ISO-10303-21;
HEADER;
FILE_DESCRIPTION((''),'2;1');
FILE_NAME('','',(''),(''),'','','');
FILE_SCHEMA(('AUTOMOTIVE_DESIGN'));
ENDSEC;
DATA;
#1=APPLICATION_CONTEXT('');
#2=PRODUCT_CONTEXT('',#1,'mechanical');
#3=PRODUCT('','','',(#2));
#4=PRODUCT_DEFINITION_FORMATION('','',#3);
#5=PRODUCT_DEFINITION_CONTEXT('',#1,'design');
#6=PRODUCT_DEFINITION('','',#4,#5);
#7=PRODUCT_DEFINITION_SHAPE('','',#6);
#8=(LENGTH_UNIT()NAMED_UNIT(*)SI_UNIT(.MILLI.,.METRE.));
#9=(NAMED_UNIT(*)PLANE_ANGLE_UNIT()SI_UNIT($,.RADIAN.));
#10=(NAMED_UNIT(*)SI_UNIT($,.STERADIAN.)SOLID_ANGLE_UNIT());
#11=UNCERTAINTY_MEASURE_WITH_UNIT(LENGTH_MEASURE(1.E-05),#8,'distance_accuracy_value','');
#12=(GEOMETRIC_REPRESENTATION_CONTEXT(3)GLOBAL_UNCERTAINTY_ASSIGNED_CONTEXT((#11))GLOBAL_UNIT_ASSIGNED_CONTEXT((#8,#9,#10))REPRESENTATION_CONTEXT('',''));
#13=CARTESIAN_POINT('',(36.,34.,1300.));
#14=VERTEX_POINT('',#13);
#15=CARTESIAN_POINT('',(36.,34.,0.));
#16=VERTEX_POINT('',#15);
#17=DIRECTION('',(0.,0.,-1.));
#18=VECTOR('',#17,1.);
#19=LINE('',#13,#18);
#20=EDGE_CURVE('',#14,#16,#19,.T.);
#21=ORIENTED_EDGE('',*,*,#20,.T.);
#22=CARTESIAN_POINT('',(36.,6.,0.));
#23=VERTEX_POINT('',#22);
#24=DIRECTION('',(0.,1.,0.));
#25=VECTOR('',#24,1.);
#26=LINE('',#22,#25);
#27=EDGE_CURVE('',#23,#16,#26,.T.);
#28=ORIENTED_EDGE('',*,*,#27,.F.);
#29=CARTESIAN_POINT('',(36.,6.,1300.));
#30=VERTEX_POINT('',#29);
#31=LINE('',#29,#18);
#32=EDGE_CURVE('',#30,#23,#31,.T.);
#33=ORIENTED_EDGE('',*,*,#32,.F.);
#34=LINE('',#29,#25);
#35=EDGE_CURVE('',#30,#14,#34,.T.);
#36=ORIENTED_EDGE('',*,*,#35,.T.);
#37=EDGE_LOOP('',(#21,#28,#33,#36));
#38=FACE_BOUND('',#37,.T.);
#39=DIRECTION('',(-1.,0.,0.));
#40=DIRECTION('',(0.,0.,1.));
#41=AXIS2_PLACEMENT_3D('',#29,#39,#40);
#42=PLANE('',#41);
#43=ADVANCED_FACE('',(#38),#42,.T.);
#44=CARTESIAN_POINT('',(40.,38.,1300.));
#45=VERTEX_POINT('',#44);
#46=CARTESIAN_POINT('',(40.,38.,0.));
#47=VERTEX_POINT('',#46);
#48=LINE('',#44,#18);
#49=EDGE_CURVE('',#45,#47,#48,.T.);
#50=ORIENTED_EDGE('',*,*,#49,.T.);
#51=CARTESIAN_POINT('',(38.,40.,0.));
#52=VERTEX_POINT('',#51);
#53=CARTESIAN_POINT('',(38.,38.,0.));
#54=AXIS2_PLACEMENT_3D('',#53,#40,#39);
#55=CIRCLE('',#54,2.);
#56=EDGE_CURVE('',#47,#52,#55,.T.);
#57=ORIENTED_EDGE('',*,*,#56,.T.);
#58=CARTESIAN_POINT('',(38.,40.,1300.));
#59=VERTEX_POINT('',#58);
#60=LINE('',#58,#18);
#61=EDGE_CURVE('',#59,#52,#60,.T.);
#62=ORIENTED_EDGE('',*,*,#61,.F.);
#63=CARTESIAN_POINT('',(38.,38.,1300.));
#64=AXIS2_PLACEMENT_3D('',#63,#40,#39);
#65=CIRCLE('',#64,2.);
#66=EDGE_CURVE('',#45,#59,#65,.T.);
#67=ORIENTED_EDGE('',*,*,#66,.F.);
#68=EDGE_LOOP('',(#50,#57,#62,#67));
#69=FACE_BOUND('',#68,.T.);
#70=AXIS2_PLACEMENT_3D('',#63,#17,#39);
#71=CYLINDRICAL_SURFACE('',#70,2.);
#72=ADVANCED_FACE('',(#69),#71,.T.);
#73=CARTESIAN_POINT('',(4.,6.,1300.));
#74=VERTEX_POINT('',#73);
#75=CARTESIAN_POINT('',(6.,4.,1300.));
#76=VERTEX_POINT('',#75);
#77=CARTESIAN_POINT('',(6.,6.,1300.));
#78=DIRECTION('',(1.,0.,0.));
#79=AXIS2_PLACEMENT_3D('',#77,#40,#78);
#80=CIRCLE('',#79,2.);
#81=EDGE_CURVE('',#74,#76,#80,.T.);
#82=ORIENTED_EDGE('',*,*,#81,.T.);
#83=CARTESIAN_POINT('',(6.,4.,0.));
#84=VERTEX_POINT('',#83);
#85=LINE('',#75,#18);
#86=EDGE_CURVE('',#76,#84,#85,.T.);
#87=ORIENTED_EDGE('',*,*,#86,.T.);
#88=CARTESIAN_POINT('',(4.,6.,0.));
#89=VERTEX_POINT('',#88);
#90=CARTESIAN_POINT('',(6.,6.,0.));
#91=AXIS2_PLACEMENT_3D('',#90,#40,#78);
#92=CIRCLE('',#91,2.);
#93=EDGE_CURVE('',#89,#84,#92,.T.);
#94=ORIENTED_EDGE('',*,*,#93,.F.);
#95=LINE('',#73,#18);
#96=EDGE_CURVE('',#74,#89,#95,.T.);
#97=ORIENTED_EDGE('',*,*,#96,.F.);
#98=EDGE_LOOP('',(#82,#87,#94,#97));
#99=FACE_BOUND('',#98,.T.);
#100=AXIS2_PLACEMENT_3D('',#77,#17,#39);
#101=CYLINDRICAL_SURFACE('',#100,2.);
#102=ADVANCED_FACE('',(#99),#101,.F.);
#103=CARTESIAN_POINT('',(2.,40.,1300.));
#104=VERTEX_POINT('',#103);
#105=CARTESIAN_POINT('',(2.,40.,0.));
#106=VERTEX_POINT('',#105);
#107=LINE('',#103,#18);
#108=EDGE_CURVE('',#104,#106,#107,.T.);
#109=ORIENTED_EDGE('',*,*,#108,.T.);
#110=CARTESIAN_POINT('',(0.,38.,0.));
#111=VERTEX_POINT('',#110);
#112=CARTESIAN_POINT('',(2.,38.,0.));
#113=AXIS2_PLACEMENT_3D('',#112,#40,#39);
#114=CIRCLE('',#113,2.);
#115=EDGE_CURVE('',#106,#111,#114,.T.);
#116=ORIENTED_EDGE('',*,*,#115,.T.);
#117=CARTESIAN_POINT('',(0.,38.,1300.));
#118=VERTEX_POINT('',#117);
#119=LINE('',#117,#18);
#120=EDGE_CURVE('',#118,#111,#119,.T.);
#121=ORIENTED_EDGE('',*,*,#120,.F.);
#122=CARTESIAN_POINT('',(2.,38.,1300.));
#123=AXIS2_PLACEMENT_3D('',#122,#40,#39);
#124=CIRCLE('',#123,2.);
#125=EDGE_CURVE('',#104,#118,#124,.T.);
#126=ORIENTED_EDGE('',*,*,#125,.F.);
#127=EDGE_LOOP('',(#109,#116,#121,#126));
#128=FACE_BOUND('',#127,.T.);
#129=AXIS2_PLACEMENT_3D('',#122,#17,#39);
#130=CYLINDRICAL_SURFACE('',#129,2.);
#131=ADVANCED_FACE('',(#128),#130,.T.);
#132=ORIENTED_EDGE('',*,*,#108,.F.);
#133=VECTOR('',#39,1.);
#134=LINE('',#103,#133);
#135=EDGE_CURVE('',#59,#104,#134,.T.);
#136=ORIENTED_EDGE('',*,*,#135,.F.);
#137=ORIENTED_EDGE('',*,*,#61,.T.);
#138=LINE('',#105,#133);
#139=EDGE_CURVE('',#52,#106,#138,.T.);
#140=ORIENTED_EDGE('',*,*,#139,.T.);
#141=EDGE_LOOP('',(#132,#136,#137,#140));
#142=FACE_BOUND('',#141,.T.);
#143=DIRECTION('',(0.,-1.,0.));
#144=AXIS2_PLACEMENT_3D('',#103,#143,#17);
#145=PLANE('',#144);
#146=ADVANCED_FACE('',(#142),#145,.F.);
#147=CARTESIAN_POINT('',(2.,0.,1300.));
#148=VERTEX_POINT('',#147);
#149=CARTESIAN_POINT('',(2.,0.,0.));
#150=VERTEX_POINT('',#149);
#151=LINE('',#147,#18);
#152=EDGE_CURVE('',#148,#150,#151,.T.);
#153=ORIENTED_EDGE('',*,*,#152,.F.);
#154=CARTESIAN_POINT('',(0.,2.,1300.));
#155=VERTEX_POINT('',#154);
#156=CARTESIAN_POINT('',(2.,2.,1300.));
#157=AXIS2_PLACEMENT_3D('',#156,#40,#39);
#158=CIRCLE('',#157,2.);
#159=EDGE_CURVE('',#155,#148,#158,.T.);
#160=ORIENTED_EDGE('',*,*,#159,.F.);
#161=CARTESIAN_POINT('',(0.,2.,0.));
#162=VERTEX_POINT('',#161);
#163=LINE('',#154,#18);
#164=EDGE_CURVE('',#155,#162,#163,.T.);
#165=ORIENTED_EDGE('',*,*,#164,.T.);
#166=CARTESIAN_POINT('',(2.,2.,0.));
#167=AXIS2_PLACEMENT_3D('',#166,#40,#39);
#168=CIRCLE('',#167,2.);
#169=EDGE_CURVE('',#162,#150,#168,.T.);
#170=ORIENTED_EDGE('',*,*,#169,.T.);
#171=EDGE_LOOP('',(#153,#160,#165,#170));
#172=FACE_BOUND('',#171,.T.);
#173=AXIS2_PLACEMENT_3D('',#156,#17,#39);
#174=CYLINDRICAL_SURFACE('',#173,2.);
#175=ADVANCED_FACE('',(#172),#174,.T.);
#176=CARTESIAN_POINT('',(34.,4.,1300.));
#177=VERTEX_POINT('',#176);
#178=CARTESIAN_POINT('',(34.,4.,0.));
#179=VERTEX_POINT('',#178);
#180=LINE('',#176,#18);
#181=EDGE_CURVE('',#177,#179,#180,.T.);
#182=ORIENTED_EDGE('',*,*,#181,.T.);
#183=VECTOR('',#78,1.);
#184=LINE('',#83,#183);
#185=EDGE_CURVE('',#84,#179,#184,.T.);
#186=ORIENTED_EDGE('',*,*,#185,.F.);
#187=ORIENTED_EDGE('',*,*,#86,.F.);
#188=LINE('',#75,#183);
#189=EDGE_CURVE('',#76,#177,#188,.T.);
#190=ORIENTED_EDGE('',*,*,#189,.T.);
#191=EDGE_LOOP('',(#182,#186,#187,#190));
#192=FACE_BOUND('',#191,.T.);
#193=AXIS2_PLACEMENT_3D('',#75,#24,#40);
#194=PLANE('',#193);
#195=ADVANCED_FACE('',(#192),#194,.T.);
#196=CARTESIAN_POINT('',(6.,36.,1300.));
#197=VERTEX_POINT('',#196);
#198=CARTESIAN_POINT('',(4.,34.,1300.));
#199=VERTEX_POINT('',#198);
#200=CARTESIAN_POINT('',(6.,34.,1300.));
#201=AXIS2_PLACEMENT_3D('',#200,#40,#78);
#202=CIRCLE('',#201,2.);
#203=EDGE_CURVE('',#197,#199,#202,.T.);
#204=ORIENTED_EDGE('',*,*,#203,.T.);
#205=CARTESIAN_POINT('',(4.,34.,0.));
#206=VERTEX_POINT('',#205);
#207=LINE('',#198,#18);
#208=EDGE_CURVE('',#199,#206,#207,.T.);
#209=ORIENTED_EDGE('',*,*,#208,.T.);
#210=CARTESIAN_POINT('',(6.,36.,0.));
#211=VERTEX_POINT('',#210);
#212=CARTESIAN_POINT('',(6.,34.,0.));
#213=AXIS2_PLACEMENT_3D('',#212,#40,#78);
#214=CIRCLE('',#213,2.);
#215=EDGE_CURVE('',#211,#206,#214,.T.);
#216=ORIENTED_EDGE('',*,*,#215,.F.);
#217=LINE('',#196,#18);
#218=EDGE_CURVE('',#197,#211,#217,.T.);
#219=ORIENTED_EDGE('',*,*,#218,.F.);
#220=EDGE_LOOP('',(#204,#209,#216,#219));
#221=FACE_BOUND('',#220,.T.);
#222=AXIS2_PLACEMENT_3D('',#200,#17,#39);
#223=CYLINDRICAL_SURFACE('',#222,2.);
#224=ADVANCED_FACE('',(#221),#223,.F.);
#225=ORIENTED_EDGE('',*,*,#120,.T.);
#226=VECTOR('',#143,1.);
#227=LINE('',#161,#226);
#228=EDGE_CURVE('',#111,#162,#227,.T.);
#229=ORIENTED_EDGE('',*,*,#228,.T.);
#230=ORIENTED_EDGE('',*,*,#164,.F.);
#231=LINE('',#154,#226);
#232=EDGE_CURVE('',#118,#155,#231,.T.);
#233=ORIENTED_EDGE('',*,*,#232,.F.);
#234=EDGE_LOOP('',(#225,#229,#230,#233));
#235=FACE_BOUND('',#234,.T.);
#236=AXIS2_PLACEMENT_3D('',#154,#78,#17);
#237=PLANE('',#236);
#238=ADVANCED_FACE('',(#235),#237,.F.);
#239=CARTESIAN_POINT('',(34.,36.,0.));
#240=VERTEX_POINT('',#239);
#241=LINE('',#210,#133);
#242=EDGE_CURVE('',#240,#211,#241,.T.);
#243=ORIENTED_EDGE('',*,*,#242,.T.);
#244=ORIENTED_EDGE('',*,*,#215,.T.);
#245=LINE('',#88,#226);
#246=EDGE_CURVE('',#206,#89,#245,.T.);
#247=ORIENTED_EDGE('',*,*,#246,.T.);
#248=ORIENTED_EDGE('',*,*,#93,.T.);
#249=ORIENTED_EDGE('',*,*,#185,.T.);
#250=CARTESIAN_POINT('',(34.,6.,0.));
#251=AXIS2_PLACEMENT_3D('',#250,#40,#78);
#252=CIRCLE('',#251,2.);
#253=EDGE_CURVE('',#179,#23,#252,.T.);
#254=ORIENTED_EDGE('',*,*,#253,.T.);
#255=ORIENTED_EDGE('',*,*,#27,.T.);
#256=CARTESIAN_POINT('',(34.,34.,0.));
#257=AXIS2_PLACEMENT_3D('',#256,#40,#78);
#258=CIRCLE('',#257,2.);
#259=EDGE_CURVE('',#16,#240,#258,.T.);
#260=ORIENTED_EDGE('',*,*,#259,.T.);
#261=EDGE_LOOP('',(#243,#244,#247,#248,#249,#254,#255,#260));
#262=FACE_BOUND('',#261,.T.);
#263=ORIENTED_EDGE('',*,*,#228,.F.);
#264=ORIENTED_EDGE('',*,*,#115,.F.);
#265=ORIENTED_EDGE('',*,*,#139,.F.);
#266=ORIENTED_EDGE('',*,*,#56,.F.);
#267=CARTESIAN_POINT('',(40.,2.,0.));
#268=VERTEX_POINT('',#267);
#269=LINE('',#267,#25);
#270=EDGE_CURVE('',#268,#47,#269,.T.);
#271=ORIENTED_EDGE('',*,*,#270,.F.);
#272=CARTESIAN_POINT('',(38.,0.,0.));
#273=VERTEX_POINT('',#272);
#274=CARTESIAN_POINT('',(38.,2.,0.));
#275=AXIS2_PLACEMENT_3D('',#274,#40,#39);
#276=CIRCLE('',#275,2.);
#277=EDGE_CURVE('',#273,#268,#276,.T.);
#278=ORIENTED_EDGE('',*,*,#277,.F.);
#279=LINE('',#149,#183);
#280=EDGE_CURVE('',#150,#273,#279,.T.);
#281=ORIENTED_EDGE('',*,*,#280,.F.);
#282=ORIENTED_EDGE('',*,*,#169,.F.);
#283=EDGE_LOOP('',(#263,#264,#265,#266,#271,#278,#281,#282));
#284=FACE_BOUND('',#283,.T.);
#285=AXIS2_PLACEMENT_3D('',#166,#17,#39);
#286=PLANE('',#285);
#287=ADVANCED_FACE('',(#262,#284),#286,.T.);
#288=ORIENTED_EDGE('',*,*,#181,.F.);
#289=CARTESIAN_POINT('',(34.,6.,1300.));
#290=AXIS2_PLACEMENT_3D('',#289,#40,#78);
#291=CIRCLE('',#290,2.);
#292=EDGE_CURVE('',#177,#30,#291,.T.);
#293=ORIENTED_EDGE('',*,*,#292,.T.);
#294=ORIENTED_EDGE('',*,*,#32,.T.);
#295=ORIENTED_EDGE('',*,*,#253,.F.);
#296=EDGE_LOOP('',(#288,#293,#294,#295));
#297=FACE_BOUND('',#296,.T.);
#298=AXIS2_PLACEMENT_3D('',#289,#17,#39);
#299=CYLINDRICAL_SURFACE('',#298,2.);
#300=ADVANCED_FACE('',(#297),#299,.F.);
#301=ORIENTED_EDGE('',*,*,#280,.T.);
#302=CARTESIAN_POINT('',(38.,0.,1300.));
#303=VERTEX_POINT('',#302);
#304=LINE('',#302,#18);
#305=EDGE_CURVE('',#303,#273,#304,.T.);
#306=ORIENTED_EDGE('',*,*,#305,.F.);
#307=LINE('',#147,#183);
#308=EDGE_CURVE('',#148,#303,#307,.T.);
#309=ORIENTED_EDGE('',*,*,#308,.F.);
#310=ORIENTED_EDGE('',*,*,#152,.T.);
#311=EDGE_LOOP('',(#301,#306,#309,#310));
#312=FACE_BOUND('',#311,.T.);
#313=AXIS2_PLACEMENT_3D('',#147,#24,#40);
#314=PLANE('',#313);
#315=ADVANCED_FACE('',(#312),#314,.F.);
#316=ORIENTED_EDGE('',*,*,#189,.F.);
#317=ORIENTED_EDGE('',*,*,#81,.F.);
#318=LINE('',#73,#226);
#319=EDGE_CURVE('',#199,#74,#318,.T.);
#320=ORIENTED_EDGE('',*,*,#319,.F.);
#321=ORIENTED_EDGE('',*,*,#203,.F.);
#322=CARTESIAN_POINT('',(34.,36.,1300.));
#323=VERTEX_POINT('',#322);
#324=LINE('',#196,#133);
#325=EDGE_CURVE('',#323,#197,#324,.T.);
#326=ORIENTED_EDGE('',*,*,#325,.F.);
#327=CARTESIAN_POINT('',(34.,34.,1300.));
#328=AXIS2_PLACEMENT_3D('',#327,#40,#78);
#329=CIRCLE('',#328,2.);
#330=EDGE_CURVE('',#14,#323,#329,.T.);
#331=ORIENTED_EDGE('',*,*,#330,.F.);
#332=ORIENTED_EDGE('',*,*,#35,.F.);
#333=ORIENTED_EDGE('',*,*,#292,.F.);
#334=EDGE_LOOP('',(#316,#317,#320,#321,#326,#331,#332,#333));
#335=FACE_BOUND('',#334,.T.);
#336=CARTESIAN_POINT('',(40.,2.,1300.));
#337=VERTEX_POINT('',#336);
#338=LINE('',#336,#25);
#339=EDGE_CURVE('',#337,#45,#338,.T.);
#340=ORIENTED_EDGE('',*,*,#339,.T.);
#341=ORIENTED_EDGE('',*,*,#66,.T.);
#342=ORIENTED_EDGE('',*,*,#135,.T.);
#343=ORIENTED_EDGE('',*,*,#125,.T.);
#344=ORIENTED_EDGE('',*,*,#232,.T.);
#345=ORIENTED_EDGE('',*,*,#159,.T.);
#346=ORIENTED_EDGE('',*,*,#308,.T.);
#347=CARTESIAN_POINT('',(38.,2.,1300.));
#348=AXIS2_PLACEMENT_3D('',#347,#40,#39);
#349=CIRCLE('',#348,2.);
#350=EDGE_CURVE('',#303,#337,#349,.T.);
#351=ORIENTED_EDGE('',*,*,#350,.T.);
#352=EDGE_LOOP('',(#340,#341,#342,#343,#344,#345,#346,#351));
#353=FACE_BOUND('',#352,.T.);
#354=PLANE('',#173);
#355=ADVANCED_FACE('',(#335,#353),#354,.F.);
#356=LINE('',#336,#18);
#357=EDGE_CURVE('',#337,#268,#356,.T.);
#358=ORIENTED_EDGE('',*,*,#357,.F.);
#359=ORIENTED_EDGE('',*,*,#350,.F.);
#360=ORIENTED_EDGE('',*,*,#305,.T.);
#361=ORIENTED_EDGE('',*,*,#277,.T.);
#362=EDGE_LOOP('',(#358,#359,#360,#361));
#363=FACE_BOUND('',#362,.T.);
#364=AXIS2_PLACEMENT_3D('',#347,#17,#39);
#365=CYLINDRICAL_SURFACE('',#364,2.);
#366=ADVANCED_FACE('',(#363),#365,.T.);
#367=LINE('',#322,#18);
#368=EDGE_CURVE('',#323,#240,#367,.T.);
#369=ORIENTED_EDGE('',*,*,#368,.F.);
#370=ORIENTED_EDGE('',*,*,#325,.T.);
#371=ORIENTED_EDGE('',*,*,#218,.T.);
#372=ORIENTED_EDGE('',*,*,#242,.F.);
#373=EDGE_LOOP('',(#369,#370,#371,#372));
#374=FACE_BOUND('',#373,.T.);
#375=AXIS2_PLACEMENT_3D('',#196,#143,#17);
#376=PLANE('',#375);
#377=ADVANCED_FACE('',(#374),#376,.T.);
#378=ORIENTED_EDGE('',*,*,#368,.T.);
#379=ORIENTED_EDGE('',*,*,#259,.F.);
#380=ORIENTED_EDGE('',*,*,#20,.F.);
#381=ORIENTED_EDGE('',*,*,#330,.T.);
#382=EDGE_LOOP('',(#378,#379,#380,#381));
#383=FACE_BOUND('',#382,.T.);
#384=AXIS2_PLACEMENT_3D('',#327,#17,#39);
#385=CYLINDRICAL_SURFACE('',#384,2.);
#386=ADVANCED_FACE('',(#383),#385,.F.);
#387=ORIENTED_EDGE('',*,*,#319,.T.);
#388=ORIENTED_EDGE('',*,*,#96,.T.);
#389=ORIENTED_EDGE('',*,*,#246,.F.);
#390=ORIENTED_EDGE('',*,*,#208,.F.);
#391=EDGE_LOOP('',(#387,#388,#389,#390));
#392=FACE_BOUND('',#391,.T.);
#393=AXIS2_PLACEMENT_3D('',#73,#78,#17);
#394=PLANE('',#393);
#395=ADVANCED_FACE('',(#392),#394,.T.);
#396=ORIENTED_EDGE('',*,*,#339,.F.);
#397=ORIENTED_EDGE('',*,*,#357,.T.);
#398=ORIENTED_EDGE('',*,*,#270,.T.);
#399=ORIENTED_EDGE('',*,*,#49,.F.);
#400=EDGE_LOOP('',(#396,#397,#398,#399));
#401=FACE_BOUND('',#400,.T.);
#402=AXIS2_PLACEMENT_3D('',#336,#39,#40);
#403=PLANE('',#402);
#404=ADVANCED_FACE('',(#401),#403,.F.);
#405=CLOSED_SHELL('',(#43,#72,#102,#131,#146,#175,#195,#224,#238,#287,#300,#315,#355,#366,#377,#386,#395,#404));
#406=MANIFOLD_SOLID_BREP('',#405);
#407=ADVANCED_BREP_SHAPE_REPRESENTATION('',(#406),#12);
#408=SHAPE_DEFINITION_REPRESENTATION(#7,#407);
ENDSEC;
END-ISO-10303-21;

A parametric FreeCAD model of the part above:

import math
import FreeCAD as App
import Part
import Sketcher
from FreeCAD import Vector

doc = App.newDocument("Part")
body = doc.addObject("PartDesign::Body", "Body")

# Sketch on XY plane
sketch1 = body.newObject("Sketcher::SketchObject", "Sketch")
sketch1.AttachmentSupport = (doc.getObject("XY_Plane"), [""])
sketch1.MapMode = "FlatFace"
sketch1.addGeometry([
    Part.LineSegment(Vector(2, 0, 0), Vector(38, 0, 0)),  # 0
    Part.ArcOfCircle(Part.Circle(Vector(38, 2, 0), Vector(0, 0, 1), 2), math.radians(-90), math.radians(0)),  # 1
    Part.LineSegment(Vector(40, 2, 0), Vector(40, 38, 0)),  # 2
    Part.ArcOfCircle(Part.Circle(Vector(38, 38, 0), Vector(0, 0, 1), 2), math.radians(0), math.radians(90)),  # 3
    Part.LineSegment(Vector(38, 40, 0), Vector(2, 40, 0)),  # 4
    Part.ArcOfCircle(Part.Circle(Vector(2, 38, 0), Vector(0, 0, 1), 2), math.radians(90), math.radians(180)),  # 5
    Part.LineSegment(Vector(0, 38, 0), Vector(0, 2, 0)),  # 6
    Part.ArcOfCircle(Part.Circle(Vector(2, 2, 0), Vector(0, 0, 1), 2), math.radians(-180), math.radians(-90)),  # 7
    Part.LineSegment(Vector(34, 4, 0), Vector(6, 4, 0)),  # 8
    Part.ArcOfCircle(Part.Circle(Vector(6, 6, 0), Vector(0, 0, 1), 2), math.radians(-180), math.radians(-90)),  # 9
    Part.LineSegment(Vector(4, 6, 0), Vector(4, 34, 0)),  # 10
    Part.ArcOfCircle(Part.Circle(Vector(6, 34, 0), Vector(0, 0, 1), 2), math.radians(90), math.radians(180)),  # 11
    Part.LineSegment(Vector(6, 36, 0), Vector(34, 36, 0)),  # 12
    Part.ArcOfCircle(Part.Circle(Vector(34, 34, 0), Vector(0, 0, 1), 2), math.radians(0), math.radians(90)),  # 13
    Part.LineSegment(Vector(36, 34, 0), Vector(36, 6, 0)),  # 14
    Part.ArcOfCircle(Part.Circle(Vector(34, 6, 0), Vector(0, 0, 1), 2), math.radians(-90), math.radians(0)),  # 15
], False)
sketch1.addConstraint([
    Sketcher.Constraint("Tangent", 0, 2, 1, 1),
    Sketcher.Constraint("Tangent", 1, 2, 2, 1),
    Sketcher.Constraint("Tangent", 2, 2, 3, 1),
    Sketcher.Constraint("Tangent", 3, 2, 4, 1),
    Sketcher.Constraint("Tangent", 4, 2, 5, 1),
    Sketcher.Constraint("Tangent", 5, 2, 6, 1),
    Sketcher.Constraint("Tangent", 6, 2, 7, 1),
    Sketcher.Constraint("Tangent", 7, 2, 0, 1),
    Sketcher.Constraint("Tangent", 8, 2, 9, 2),
    Sketcher.Constraint("Tangent", 9, 1, 10, 1),
    Sketcher.Constraint("Tangent", 10, 2, 11, 2),
    Sketcher.Constraint("Tangent", 11, 1, 12, 1),
    Sketcher.Constraint("Tangent", 12, 2, 13, 2),
    Sketcher.Constraint("Tangent", 13, 1, 14, 1),
    Sketcher.Constraint("Tangent", 14, 2, 15, 2),
    Sketcher.Constraint("Tangent", 15, 1, 8, 1),
    Sketcher.Constraint("Horizontal", 0),
    Sketcher.Constraint("Vertical", 2),
    Sketcher.Constraint("Horizontal", 4),
    Sketcher.Constraint("Vertical", 6),
    Sketcher.Constraint("Horizontal", 8),
    Sketcher.Constraint("Vertical", 10),
    Sketcher.Constraint("Horizontal", 12),
    Sketcher.Constraint("Vertical", 14),
    Sketcher.Constraint("Equal", 1, 3),
    Sketcher.Constraint("Equal", 3, 5),
    Sketcher.Constraint("Equal", 5, 7),
    Sketcher.Constraint("Equal", 7, 9),
    Sketcher.Constraint("Equal", 9, 11),
    Sketcher.Constraint("Equal", 11, 13),
    Sketcher.Constraint("Equal", 13, 15),
    Sketcher.Constraint("PointOnObject", 0, 2, -1),
    Sketcher.Constraint("PointOnObject", 5, 2, -2),
    Sketcher.Constraint("Equal", 4, 2),
    Sketcher.Constraint("Equal", 12, 10),
    Sketcher.Constraint("Radius", 1, 2.0),
    Sketcher.Constraint("DistanceX", 0, 1, 0, 2, 36.0),
    Sketcher.Constraint("DistanceX", 8, 2, 8, 1, 28.0),
    Sketcher.Constraint("DistanceX", -1, 1, 9, 3, 6.0),
    Sketcher.Constraint("DistanceY", -1, 1, 9, 3, 6.0),
])
pad1 = body.newObject("PartDesign::Pad", "Pad")
pad1.Profile = sketch1
pad1.Length = 1300

doc.recompute()
